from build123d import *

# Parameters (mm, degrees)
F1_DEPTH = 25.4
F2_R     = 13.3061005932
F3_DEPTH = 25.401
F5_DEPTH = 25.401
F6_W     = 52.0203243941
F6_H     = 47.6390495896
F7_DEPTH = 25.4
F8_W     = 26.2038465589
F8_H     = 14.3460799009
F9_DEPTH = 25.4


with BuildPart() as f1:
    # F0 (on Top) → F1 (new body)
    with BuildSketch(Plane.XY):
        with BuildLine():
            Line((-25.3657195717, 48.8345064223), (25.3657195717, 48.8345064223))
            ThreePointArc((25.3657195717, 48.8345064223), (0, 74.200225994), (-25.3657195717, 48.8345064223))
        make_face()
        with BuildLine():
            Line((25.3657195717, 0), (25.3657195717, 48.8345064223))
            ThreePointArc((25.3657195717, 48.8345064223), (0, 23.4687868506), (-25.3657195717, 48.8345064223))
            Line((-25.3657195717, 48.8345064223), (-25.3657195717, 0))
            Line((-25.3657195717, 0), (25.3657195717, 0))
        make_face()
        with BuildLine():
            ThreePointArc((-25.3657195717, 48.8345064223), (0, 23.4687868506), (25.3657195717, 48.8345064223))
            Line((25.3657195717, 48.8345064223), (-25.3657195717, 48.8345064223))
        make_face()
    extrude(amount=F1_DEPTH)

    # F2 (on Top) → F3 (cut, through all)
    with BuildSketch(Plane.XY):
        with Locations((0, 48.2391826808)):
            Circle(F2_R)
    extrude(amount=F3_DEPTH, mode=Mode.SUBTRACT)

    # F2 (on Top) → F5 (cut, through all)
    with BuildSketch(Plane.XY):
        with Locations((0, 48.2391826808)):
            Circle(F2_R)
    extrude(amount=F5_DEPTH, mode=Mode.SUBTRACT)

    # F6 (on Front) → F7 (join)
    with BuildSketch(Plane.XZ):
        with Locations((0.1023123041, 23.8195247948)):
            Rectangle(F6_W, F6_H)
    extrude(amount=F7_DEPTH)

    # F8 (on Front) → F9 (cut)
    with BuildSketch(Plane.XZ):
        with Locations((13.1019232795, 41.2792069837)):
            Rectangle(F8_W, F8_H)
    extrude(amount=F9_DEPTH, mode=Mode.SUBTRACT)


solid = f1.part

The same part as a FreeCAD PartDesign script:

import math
import FreeCAD as App
import Part
import Sketcher
Q = App.Units.Quantity

doc = App.newDocument("Part")
body = doc.addObject("PartDesign::Body", "Body")

sketch1 = doc.addObject("Sketcher::SketchObject", "Sketch")
body.addObject(sketch1)
sketch1.AttachmentSupport = (doc.XY_Plane, [""])
sketch1.MapMode = "FlatFace"
sketch1.addGeometry([
    Part.ArcOfCircle(Part.Circle(App.Vector(0, 48.834506, 0), App.Vector(0, 0, 1), 25.36572), math.radians(0), math.radians(180)),
    Part.LineSegment(App.Vector(-25.36572, 48.834506, 0), App.Vector(-25.36572, 0, 0)),
    Part.LineSegment(App.Vector(-25.36572, 0, 0), App.Vector(25.36572, 0, 0)),
    Part.LineSegment(App.Vector(25.36572, 0, 0), App.Vector(25.36572, 48.834506, 0)),
], False)
sketch1.addConstraint([
    Sketcher.Constraint("Tangent", 0, 2, 1, 1),
    Sketcher.Constraint("Coincident", 1, 2, 2, 1),
    Sketcher.Constraint("Coincident", 2, 2, 3, 1),
    Sketcher.Constraint("Tangent", 3, 2, 0, 1),
    Sketcher.Constraint("Vertical", 1),
    Sketcher.Constraint("Horizontal", 2),
    Sketcher.Constraint("Vertical", 3),
    Sketcher.Constraint("Symmetric", 1, 2, 2, 2, -1, 1),
    Sketcher.Constraint("Radius", 0, Q("25.36572 mm")),
    Sketcher.Constraint("DistanceY", 1, 2, 1, 1, Q("48.834506 mm")),
])
pad1 = doc.addObject("PartDesign::Pad", "Pad")
body.addObject(pad1)
pad1.Profile = sketch1
pad1.Length = Q("1 in")

sketch2 = doc.addObject("Sketcher::SketchObject", "Sketch001")
body.addObject(sketch2)
sketch2.AttachmentSupport = (doc.XY_Plane, [""])
sketch2.MapMode = "FlatFace"
sketch2.addGeometry(Part.Circle(App.Vector(0, 48.239183, 0), App.Vector(0, 0, 1), 13.306101), False)
sketch2.addConstraint([
    Sketcher.Constraint("PointOnObject", 0, 3, -2),
    Sketcher.Constraint("Diameter", 0, Q("26.612201 mm")),
    Sketcher.Constraint("DistanceY", -1, 1, 0, 3, Q("48.239183 mm")),
])
pocket1 = doc.addObject("PartDesign::Pocket", "Pocket")
body.addObject(pocket1)
pocket1.Profile = sketch2
pocket1.Type = "ThroughAll"
pocket1.Reversed = True

sketch3 = doc.addObject("Sketcher::SketchObject", "Sketch002")
body.addObject(sketch3)
sketch3.AttachmentSupport = (doc.XY_Plane, [""])
sketch3.MapMode = "FlatFace"
sketch3.addGeometry(Part.Circle(App.Vector(0, 48.239183, 0), App.Vector(0, 0, 1), 13.306101), False)
sketch3.addConstraint([
    Sketcher.Constraint("PointOnObject", 0, 3, -2),
    Sketcher.Constraint("Diameter", 0, Q("26.612201 mm")),
    Sketcher.Constraint("DistanceY", -1, 1, 0, 3, Q("48.239183 mm")),
])
pocket2 = doc.addObject("PartDesign::Pocket", "Pocket001")
body.addObject(pocket2)
pocket2.Profile = sketch3
pocket2.Type = "ThroughAll"
pocket2.Reversed = True

sketch4 = doc.addObject("Sketcher::SketchObject", "Sketch003")
body.addObject(sketch4)
sketch4.AttachmentSupport = (doc.XZ_Plane, [""])
sketch4.MapMode = "FlatFace"
sketch4.addGeometry([
    Part.LineSegment(App.Vector(-25.90785, 47.63905, 0), App.Vector(-25.90785, 0, 0)),
    Part.LineSegment(App.Vector(-25.90785, 0, 0), App.Vector(26.112475, 0, 0)),
    Part.LineSegment(App.Vector(26.112475, 0, 0), App.Vector(26.112475, 47.63905, 0)),
    Part.LineSegment(App.Vector(26.112475, 47.63905, 0), App.Vector(-25.90785, 47.63905, 0)),
], False)
sketch4.addConstraint([
    Sketcher.Constraint("Coincident", 0, 2, 1, 1),
    Sketcher.Constraint("Coincident", 1, 2, 2, 1),
    Sketcher.Constraint("Coincident", 2, 2, 3, 1),
    Sketcher.Constraint("Coincident", 3, 2, 0, 1),
    Sketcher.Constraint("Vertical", 0),
    Sketcher.Constraint("Horizontal", 1),
    Sketcher.Constraint("Vertical", 2),
    Sketcher.Constraint("Horizontal", 3),
    Sketcher.Constraint("PointOnObject", 0, 2, -1),
    Sketcher.Constraint("DistanceY", 0, 2, 0, 1, Q("47.63905 mm")),
    Sketcher.Constraint("DistanceX", 1, 1, 1, 2, Q("52.020324 mm")),
    Sketcher.Constraint("DistanceX", 0, 2, -1, 1, Q("25.90785 mm")),
])
pad2 = doc.addObject("PartDesign::Pad", "Pad001")
body.addObject(pad2)
pad2.Profile = sketch4
pad2.Length = Q("1 in")

sketch5 = doc.addObject("Sketcher::SketchObject", "Sketch004")
body.addObject(sketch5)
sketch5.AttachmentSupport = (doc.XZ_Plane, [""])
sketch5.MapMode = "FlatFace"
sketch5.addGeometry([
    Part.LineSegment(App.Vector(0, 48.452247, 0), App.Vector(0, 34.106167, 0)),
    Part.LineSegment(App.Vector(0, 34.106167, 0), App.Vector(26.203847, 34.106167, 0)),
    Part.LineSegment(App.Vector(26.203847, 34.106167, 0), App.Vector(26.203847, 48.452247, 0)),
    Part.LineSegment(App.Vector(26.203847, 48.452247, 0), App.Vector(0, 48.452247, 0)),
], False)
sketch5.addConstraint([
    Sketcher.Constraint("Coincident", 0, 2, 1, 1),
    Sketcher.Constraint("Coincident", 1, 2, 2, 1),
    Sketcher.Constraint("Coincident", 2, 2, 3, 1),
    Sketcher.Constraint("Coincident", 3, 2, 0, 1),
    Sketcher.Constraint("Vertical", 0),
    Sketcher.Constraint("Horizontal", 1),
    Sketcher.Constraint("Vertical", 2),
    Sketcher.Constraint("Horizontal", 3),
    Sketcher.Constraint("PointOnObject", 0, 2, -2),
    Sketcher.Constraint("DistanceY", 0, 2, 0, 1, Q("14.34608 mm")),
    Sketcher.Constraint("DistanceX", 1, 1, 1, 2, Q("26.203847 mm")),
    Sketcher.Constraint("DistanceY", -1, 1, 0, 2, Q("34.106167 mm")),
])
pocket3 = doc.addObject("PartDesign::Pocket", "Pocket002")
body.addObject(pocket3)
pocket3.Profile = sketch5
pocket3.Length = Q("1 in")
pocket3.Reversed = True

doc.recompute()
